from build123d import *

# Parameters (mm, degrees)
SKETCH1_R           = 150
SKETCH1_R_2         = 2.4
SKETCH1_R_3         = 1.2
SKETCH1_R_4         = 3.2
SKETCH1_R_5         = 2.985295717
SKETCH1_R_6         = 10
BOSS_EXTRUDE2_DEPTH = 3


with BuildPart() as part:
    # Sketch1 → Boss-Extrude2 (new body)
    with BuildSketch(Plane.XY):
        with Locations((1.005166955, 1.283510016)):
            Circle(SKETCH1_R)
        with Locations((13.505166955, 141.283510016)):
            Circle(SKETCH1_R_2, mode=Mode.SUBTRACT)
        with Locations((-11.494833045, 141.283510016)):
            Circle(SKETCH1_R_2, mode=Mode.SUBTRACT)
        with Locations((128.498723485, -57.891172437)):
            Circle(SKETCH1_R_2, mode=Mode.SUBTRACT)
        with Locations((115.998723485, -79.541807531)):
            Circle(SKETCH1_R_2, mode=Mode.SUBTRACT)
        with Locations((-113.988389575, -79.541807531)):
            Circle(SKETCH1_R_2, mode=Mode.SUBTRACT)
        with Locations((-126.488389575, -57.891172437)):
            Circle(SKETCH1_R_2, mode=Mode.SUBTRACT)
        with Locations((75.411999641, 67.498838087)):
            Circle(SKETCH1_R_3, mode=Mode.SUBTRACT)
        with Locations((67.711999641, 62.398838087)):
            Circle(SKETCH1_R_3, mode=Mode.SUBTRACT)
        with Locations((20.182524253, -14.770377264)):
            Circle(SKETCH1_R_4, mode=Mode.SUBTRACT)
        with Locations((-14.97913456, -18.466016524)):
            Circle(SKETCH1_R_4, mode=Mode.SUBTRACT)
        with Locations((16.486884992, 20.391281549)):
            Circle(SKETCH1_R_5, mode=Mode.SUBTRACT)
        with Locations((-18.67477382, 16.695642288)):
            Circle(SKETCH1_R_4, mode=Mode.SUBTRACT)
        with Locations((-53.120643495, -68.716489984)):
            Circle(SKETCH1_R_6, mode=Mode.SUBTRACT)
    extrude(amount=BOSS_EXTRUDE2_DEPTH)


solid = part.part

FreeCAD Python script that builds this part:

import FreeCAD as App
import Part
import Sketcher

V = App.Vector

doc = App.newDocument("Part")
body = doc.addObject("PartDesign::Body", "Body")

sketch1 = body.newObject("Sketcher::SketchObject", "Sketch")
sketch1.AttachmentSupport = (doc.getObject("XY_Plane"), [""])
sketch1.MapMode = "FlatFace"
sketch1.addGeometry([
    Part.Circle(V(1.005167, 1.28351, 0), V(0, 0, 1), 150),
    Part.Circle(V(-113.98839, -79.541808, 0), V(0, 0, 1), 2.4),
    Part.Circle(V(-126.48839, -57.891172, 0), V(0, 0, 1), 2.4),
    Part.Circle(V(-53.120643, -68.71649, 0), V(0, 0, 1), 10),
    Part.Circle(V(-14.979135, -18.466017, 0), V(0, 0, 1), 3.2),
    Part.Circle(V(-18.674774, 16.695642, 0), V(0, 0, 1), 3.2),
    Part.Circle(V(115.998723, -79.541808, 0), V(0, 0, 1), 2.4),
    Part.Circle(V(128.498723, -57.891172, 0), V(0, 0, 1), 2.4),
    Part.Circle(V(20.182524, -14.770377, 0), V(0, 0, 1), 3.2),
    Part.Circle(V(16.486885, 20.391282, 0), V(0, 0, 1), 2.985296),
    Part.Circle(V(-11.494833, 141.28351, 0), V(0, 0, 1), 2.4),
    Part.Circle(V(67.712, 62.398838, 0), V(0, 0, 1), 1.2),
    Part.Circle(V(75.412, 67.498838, 0), V(0, 0, 1), 1.2),
    Part.Circle(V(13.505167, 141.28351, 0), V(0, 0, 1), 2.4),
], False)
sketch1.addConstraint([
    Sketcher.Constraint("Equal", 1, 2),
    Sketcher.Constraint("Equal", 4, 5),
    Sketcher.Constraint("Equal", 2, 6),
    Sketcher.Constraint("Equal", 6, 7),
    Sketcher.Constraint("Equal", 5, 8),
    Sketcher.Constraint("Equal", 7, 10),
    Sketcher.Constraint("Equal", 11, 12),
    Sketcher.Constraint("Equal", 10, 13),
    Sketcher.Constraint("Horizontal", 1, 3, 6, 3),
    Sketcher.Constraint("Horizontal", 2, 3, 7, 3),
    Sketcher.Constraint("Horizontal", 10, 3, 13, 3),
    Sketcher.Constraint("Diameter", 0, 300.0),
    Sketcher.Constraint("Diameter", 3, 20.0),
    Sketcher.Constraint("Diameter", 1, 4.8),
    Sketcher.Constraint("Diameter", 4, 6.4),
    Sketcher.Constraint("Diameter", 11, 2.4),
    Sketcher.Constraint("DistanceY", 3, 3, 0, 3, 70.0),
    Sketcher.Constraint("DistanceY", 0, 3, 10, 3, 140.0),
    Sketcher.Constraint("DistanceX", 10, 3, 13, 3, 25.0),
    Sketcher.Constraint("DistanceX", 2, 3, 1, 3, 12.5),
    Sketcher.Constraint("DistanceX", 6, 3, 7, 3, 12.5),
    Sketcher.Constraint("DistanceX", 10, 3, 0, 3, 12.5),
    Sketcher.Constraint("DistanceX", 11, 3, 12, 3, 7.7),
    Sketcher.Constraint("DistanceY", 11, 3, 12, 3, 5.1),
    Sketcher.Constraint("Diameter", 9, 5.970591),
    Sketcher.Constraint("DistanceX", -1, 1, 11, 3, 67.712),
    Sketcher.Constraint("DistanceX", 4, 3, 0, 3, 15.984302),
    Sketcher.Constraint("DistanceX", 5, 3, 8, 3, 38.857298),
    Sketcher.Constraint("DistanceX", 8, 3, 6, 3, 95.816199),
    Sketcher.Constraint("DistanceY", 4, 3, 9, 3, 38.857298),
    Sketcher.Constraint("DistanceY", -1, 1, 0, 3, 1.28351),
    Sketcher.Constraint("DistanceX", 1, 3, -1, 1, 113.98839),
    Sketcher.Constraint("DistanceY", -1, 1, 9, 3, 20.391282),
    Sketcher.Constraint("DistanceY", -1, 1, 11, 3, 62.398838),
    Sketcher.Constraint("DistanceX", 3, 3, 0, 3, 54.12581),
    Sketcher.Constraint("DistanceY", 1, 3, 4, 3, 61.075791),
    Sketcher.Constraint("DistanceX", 5, 3, 0, 3, 19.679941),
    Sketcher.Constraint("DistanceY", 4, 3, 5, 3, 35.161659),
    Sketcher.Constraint("DistanceY", 4, 3, 8, 3, 3.695639),
    Sketcher.Constraint("DistanceX", 0, 3, 9, 3, 15.481718),
    Sketcher.Constraint("DistanceX", -1, 1, 0, 3, 1.005167),
    Sketcher.Constraint("DistanceY", 2, 3, -1, 1, 57.891172),
])
pad1 = body.newObject("PartDesign::Pad", "Pad")
pad1.Profile = sketch1
pad1.Length = 3

doc.recompute()
